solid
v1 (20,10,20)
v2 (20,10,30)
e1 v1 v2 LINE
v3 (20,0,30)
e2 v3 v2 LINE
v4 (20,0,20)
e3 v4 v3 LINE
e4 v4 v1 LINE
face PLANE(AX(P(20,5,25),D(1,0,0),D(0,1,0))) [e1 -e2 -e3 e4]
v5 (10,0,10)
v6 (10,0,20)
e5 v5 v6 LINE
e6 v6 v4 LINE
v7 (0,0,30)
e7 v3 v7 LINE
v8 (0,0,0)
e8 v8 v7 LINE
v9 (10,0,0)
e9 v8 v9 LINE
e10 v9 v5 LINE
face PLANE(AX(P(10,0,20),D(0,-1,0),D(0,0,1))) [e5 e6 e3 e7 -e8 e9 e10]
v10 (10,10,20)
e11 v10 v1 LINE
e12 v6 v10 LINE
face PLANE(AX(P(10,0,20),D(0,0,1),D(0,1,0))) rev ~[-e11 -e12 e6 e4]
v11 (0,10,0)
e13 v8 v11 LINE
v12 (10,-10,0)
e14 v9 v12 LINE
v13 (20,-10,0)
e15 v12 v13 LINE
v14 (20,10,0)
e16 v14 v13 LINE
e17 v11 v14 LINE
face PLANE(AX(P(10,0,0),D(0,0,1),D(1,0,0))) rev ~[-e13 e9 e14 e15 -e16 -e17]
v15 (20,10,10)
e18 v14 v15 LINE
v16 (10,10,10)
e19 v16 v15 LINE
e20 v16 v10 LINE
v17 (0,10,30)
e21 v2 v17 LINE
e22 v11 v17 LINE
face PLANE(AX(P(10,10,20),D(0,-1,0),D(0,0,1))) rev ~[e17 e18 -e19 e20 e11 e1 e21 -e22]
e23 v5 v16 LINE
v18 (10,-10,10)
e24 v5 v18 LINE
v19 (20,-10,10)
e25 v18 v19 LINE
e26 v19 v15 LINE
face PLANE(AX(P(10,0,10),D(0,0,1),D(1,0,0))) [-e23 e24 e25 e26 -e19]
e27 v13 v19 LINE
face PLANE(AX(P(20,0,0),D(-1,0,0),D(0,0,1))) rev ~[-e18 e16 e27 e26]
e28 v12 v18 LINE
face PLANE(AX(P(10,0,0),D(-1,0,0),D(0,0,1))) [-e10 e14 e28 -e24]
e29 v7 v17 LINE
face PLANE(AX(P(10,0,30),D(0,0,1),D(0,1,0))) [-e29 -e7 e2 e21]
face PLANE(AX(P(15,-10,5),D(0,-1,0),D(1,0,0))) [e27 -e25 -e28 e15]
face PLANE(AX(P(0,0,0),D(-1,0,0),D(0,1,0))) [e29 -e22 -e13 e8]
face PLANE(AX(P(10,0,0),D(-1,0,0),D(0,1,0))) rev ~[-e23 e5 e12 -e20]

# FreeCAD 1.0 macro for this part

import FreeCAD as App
import Part
import Sketcher
from FreeCAD import Vector
Q = App.Units.Quantity


def add_polygon(sketch, points):
    """Adds a closed chain of lines whose ends are joined by coincident constraints."""
    first, n = sketch.GeometryCount, len(points)
    for a, b in zip(points, points[1:] + points[:1]):
        sketch.addGeometry(Part.LineSegment(App.Vector(*a, 0), App.Vector(*b, 0)), False)
    for i in range(n):
        sketch.addConstraint(Sketcher.Constraint("Coincident", first + i, 2, first + (i + 1) % n, 1))

doc = App.newDocument("Part")
params = doc.addObject("Spreadsheet::Sheet", "Params")
for row, (alias, value) in enumerate([
    ("sketch1_width", "10 mm"),
    ("pad1_length", "30 mm"),
    ("sketch2_width", "10 mm"),
    ("pad2_length", "10 mm"),
    ("sketch3_width", "10 mm"),
    ("pad3_length", "10 mm"),
    ("sketch4_width", "10 mm"),
    ("pad4_length", "10 mm"),
], start=1):
    params.set(f"A{row}", alias)
    params.set(f"B{row}", "=" + value)
    params.setAlias(f"B{row}", alias)

body = doc.addObject("PartDesign::Body", "Body")

# Sketch on XY plane
sketch1 = body.newObject("Sketcher::SketchObject", "Sketch")
sketch1.AttachmentSupport = (doc.getObject("XY_Plane"), [""])
sketch1.MapMode = "FlatFace"
add_polygon(sketch1, [(0, 10), (0, 0), (10, 0), (10, 10)])  # lines 0-3
sketch1.addConstraint([
    Sketcher.Constraint("Vertical", 0),
    Sketcher.Constraint("Horizontal", 1),
    Sketcher.Constraint("Vertical", 2),
    Sketcher.Constraint("Horizontal", 3),
    Sketcher.Constraint("Coincident", 0, 2, -1, 1),
    Sketcher.Constraint("Equal", 3, 0),
    Sketcher.Constraint("DistanceX", 1, 1, 1, 2, Q("10 mm")),
])
sketch1.setExpression("Constraints[10]", "Params.sketch1_width")
pad1 = body.newObject("PartDesign::Pad", "Pad")
pad1.Profile = sketch1
pad1.setExpression("Length", "Params.pad1_length")

# Sketch on YZ plane
sketch2 = body.newObject("Sketcher::SketchObject", "Sketch001")
sketch2.AttachmentSupport = (doc.getObject("YZ_Plane"), [""])
sketch2.MapMode = "FlatFace"
sketch2.AttachmentOffset = App.Placement(Vector(0, 0, 10), App.Rotation())
add_polygon(sketch2, [(0, 10), (0, 0), (10, 0), (10, 10)])  # lines 0-3
sketch2.addConstraint([
    Sketcher.Constraint("Vertical", 0),
    Sketcher.Constraint("Horizontal", 1),
    Sketcher.Constraint("Vertical", 2),
    Sketcher.Constraint("Horizontal", 3),
    Sketcher.Constraint("Coincident", 0, 2, -1, 1),
    Sketcher.Constraint("Equal", 3, 0),
    Sketcher.Constraint("DistanceX", 1, 1, 1, 2, Q("10 mm")),
])
sketch2.setExpression("Constraints[10]", "Params.sketch2_width")
pad2 = body.newObject("PartDesign::Pad", "Pad001")
pad2.Profile = sketch2
pad2.setExpression("Length", "Params.pad2_length")

# Sketch on XZ plane
sketch3 = body.newObject("Sketcher::SketchObject", "Sketch002")
sketch3.AttachmentSupport = (doc.getObject("XZ_Plane"), [""])
sketch3.MapMode = "FlatFace"
add_polygon(sketch3, [(10, 10), (10, 0), (20, 0), (20, 10)])  # lines 0-3
sketch3.addConstraint([
    Sketcher.Constraint("Vertical", 0),
    Sketcher.Constraint("Horizontal", 1),
    Sketcher.Constraint("Vertical", 2),
    Sketcher.Constraint("Horizontal", 3),
    Sketcher.Constraint("PointOnObject", 0, 2, -1),
    Sketcher.Constraint("Equal", 3, 0),
    Sketcher.Constraint("DistanceX", 1, 1, 1, 2, Q("10 mm")),
    Sketcher.Constraint("DistanceX", -1, 1, 0, 2, Q("10 mm")),
])
sketch3.setExpression("Constraints[10]", "Params.sketch3_width")
pad3 = body.newObject("PartDesign::Pad", "Pad002")
pad3.Profile = sketch3
pad3.setExpression("Length", "Params.pad3_length")

# Sketch on YZ plane
sketch4 = body.newObject("Sketcher::SketchObject", "Sketch003")
sketch4.AttachmentSupport = (doc.getObject("YZ_Plane"), [""])
sketch4.MapMode = "FlatFace"
sketch4.AttachmentOffset = App.Placement(Vector(0, 0, 10), App.Rotation())
add_polygon(sketch4, [(0, 30), (0, 20), (10, 20), (10, 30)])  # lines 0-3
sketch4.addConstraint([
    Sketcher.Constraint("Vertical", 0),
    Sketcher.Constraint("Horizontal", 1),
    Sketcher.Constraint("Vertical", 2),
    Sketcher.Constraint("Horizontal", 3),
    Sketcher.Constraint("PointOnObject", 0, 2, -2),
    Sketcher.Constraint("Equal", 3, 0),
    Sketcher.Constraint("DistanceX", 1, 1, 1, 2, Q("10 mm")),
    Sketcher.Constraint("DistanceY", -1, 1, 0, 2, Q("20 mm")),
])
sketch4.setExpression("Constraints[10]", "Params.sketch4_width")
pad4 = body.newObject("PartDesign::Pad", "Pad003")
pad4.Profile = sketch4
pad4.setExpression("Length", "Params.pad4_length")

doc.recompute()
